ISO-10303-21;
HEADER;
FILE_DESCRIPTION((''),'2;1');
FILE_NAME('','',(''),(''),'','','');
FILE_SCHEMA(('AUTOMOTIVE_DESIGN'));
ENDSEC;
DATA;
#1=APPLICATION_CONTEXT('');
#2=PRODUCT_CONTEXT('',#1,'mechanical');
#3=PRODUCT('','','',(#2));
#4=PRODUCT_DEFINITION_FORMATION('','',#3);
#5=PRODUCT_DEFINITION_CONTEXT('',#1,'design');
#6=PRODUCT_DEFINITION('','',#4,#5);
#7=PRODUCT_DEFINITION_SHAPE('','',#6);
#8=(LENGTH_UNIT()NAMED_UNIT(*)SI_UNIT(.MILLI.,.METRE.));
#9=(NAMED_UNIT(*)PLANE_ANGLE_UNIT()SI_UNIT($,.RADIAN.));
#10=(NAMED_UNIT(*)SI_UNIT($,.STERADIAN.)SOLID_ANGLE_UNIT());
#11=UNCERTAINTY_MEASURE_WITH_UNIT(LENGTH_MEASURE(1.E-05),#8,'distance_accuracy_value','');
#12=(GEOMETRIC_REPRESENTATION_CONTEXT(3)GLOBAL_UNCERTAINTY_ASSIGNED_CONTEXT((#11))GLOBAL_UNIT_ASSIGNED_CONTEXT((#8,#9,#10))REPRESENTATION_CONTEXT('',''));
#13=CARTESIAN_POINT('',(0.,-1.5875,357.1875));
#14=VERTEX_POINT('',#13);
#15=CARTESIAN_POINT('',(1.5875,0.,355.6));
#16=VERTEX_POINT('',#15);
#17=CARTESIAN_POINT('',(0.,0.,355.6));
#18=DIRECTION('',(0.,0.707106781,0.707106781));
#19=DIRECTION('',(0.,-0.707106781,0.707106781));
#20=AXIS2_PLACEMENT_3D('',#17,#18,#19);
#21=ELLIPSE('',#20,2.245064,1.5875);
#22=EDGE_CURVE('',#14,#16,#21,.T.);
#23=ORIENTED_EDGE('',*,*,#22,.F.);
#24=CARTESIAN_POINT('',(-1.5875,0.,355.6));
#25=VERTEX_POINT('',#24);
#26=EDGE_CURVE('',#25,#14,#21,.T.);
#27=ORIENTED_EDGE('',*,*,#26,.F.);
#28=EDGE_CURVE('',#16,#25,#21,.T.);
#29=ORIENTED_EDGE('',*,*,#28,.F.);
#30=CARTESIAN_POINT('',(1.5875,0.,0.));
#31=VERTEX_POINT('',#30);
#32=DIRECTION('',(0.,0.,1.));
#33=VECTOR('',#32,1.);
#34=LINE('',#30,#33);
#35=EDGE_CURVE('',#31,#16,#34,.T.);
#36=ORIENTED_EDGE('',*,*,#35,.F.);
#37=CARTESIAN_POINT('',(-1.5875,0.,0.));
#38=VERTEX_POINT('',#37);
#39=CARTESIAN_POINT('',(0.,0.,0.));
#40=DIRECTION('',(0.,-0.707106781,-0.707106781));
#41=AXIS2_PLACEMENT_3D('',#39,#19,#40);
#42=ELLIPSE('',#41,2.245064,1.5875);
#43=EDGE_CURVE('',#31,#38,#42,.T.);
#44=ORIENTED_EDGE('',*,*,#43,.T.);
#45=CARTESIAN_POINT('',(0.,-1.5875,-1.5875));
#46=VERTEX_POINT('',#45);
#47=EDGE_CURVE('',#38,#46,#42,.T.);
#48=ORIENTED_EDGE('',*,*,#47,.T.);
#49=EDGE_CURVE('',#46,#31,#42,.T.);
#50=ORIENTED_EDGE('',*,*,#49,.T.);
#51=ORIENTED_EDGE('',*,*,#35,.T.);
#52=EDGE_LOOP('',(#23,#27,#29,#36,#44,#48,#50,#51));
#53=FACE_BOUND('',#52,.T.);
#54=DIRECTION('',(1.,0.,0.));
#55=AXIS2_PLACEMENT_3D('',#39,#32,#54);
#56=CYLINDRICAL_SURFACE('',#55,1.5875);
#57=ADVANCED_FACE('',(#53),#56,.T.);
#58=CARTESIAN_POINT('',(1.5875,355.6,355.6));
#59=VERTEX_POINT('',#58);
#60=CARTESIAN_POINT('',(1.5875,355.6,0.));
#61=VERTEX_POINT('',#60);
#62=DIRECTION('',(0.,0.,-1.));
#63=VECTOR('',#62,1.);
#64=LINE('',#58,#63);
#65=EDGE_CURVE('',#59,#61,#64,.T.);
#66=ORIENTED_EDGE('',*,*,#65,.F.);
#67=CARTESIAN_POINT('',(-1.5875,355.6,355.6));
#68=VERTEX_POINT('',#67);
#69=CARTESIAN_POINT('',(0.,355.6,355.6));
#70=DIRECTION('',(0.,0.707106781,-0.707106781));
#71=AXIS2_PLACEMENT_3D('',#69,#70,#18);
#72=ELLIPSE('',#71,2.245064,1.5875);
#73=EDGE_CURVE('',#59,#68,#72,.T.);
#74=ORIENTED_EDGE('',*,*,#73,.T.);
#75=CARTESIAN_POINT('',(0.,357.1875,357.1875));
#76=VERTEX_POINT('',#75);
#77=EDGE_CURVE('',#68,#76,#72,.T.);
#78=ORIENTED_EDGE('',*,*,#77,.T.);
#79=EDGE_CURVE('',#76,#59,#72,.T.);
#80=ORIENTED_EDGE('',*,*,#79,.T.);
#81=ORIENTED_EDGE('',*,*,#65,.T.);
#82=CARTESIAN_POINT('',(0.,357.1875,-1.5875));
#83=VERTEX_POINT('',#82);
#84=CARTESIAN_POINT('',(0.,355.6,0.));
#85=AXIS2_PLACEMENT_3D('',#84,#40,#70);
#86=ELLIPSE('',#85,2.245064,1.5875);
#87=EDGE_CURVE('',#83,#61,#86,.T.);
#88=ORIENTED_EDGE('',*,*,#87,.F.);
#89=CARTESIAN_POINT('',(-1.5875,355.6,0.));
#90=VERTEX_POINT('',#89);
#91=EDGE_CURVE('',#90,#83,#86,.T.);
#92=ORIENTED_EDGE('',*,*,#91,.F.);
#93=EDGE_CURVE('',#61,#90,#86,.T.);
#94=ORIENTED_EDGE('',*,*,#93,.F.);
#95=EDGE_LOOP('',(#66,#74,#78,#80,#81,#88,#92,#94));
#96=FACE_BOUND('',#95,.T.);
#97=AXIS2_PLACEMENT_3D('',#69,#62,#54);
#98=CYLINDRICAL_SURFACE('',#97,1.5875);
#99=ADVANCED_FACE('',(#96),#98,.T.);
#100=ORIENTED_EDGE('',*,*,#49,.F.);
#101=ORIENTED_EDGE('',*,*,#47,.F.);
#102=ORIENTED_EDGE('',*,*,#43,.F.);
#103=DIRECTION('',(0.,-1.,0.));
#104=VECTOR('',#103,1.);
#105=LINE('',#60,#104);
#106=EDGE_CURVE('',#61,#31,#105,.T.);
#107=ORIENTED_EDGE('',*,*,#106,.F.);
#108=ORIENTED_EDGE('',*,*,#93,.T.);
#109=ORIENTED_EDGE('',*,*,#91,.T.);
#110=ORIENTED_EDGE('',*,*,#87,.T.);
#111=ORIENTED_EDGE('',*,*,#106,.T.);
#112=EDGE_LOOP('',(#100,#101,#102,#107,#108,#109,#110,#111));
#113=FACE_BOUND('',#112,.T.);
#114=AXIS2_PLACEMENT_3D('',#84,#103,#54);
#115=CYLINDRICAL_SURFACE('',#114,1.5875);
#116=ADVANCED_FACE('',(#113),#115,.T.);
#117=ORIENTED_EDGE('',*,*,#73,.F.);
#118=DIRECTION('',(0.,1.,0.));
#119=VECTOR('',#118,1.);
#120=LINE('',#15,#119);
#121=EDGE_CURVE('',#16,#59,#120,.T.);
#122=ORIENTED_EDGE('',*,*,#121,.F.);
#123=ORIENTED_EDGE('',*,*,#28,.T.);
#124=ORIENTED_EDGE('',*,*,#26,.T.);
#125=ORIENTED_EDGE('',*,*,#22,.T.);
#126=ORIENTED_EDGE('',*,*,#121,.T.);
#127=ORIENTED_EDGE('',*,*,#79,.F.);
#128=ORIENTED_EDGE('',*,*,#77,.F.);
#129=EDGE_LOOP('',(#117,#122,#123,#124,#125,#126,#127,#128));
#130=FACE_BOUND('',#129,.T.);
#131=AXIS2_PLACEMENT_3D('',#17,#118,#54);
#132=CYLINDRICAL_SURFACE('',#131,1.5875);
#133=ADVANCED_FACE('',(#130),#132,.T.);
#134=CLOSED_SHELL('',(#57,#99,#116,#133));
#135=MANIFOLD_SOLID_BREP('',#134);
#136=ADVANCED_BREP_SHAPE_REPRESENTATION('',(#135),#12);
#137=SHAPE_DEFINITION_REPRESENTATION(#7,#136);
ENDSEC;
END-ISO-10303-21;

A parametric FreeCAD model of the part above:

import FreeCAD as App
import Part
import Sketcher
Q = App.Units.Quantity

doc = App.newDocument("Part")
params = doc.addObject("Spreadsheet::Sheet", "Params")
for row, (alias, value) in enumerate([
    ("sketch1_diameter", "0.125 in"),
    ("sketch2_width", "14 in"),
], start=1):
    params.set(f"A{row}", alias)
    params.set(f"B{row}", "=" + value)
    params.setAlias(f"B{row}", alias)

body = doc.addObject("PartDesign::Body", "Body")

# Sketch on XY plane
sketch1 = body.newObject("Sketcher::SketchObject", "Sketch")
sketch1.AttachmentSupport = (doc.getObject("XY_Plane"), [""])
sketch1.MapMode = "FlatFace"
sketch1.addGeometry(Part.Circle(App.Vector(0, 0, 0), App.Vector(0, 0, 1), 1.6), False)
sketch1.addConstraint([
    Sketcher.Constraint("Coincident", 0, 3, -1, 1),
    Sketcher.Constraint("Diameter", 0, Q("0.125 in")),
])
sketch1.setExpression("Constraints[1]", "Params.sketch1_diameter")

# Sketch on YZ plane
sketch2 = body.newObject("Sketcher::SketchObject", "Sketch001")
sketch2.AttachmentSupport = (doc.getObject("YZ_Plane"), [""])
sketch2.MapMode = "FlatFace"
sketch2.addGeometry([
    Part.LineSegment(App.Vector(0, 0, 0), App.Vector(0, 356, 0)),
    Part.LineSegment(App.Vector(0, 356, 0), App.Vector(356, 356, 0)),
    Part.LineSegment(App.Vector(356, 356, 0), App.Vector(356, 0, 0)),
    Part.LineSegment(App.Vector(356, 0, 0), App.Vector(0, 0, 0)),
], False)
sketch2.addConstraint([
    Sketcher.Constraint("Coincident", 0, 2, 1, 1),
    Sketcher.Constraint("Coincident", 1, 2, 2, 1),
    Sketcher.Constraint("Coincident", 2, 2, 3, 1),
    Sketcher.Constraint("Coincident", 3, 2, 0, 1),
    Sketcher.Constraint("Vertical", 0),
    Sketcher.Constraint("Horizontal", 1),
    Sketcher.Constraint("Vertical", 2),
    Sketcher.Constraint("Horizontal", 3),
    Sketcher.Constraint("Coincident", 3, 2, -1, 1),
    Sketcher.Constraint("Equal", 3, 0),
    Sketcher.Constraint("DistanceX", 1, 1, 1, 2, Q("14 in")),
])
sketch2.setExpression("Constraints[10]", "Params.sketch2_width")
doc.recompute()

additivepipe = body.newObject("PartDesign::AdditivePipe", "AdditivePipe")
additivepipe.Profile = sketch1
additivepipe.Spine = (sketch2, ["Edge1", "Edge2", "Edge3", "Edge4"])
additivepipe.Transition = "Right corner"

doc.recompute()
